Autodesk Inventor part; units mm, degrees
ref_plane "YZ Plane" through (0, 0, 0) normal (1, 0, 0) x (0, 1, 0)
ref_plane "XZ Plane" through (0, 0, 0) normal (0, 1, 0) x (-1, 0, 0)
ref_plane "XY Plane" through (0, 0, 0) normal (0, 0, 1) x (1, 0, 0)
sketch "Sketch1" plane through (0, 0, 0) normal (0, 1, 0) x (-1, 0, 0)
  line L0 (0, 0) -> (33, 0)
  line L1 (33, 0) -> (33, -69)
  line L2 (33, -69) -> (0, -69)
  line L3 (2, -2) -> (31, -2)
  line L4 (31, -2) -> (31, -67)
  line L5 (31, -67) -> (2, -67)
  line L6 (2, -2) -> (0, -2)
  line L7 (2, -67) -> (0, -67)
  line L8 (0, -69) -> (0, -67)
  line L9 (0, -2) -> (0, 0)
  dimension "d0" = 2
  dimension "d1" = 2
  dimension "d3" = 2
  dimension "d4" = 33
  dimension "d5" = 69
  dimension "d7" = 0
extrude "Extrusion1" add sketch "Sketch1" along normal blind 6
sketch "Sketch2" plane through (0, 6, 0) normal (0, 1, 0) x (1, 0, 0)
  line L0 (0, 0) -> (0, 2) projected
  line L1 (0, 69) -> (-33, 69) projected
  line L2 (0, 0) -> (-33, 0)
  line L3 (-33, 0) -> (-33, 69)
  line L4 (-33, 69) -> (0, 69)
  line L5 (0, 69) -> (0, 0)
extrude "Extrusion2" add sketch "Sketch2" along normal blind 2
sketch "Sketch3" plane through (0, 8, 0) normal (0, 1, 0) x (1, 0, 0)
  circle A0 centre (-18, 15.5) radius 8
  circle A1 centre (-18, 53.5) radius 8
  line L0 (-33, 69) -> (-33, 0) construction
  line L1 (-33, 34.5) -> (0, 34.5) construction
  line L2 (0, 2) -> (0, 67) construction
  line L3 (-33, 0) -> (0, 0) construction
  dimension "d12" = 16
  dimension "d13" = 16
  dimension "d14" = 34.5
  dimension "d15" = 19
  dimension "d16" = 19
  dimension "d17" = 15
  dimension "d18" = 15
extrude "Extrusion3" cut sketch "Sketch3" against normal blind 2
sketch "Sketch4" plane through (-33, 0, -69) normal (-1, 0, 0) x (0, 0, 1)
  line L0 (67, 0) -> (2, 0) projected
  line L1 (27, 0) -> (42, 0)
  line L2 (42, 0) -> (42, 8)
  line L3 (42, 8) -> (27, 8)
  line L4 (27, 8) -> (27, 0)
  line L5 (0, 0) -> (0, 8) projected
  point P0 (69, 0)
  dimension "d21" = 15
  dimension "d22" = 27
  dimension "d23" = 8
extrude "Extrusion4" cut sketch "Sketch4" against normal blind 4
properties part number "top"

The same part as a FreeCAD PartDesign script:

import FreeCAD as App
import Part
import Sketcher
from FreeCAD import Vector
Q = App.Units.Quantity


def add_polygon(sketch, points):
    """Adds a closed chain of lines whose ends are joined by coincident constraints."""
    first, n = sketch.GeometryCount, len(points)
    for a, b in zip(points, points[1:] + points[:1]):
        sketch.addGeometry(Part.LineSegment(App.Vector(*a, 0), App.Vector(*b, 0)), False)
    for i in range(n):
        sketch.addConstraint(Sketcher.Constraint("Coincident", first + i, 2, first + (i + 1) % n, 1))

doc = App.newDocument("Part")
body = doc.addObject("PartDesign::Body", "Body")

# Sketch on XZ plane
sketch1 = body.newObject("Sketcher::SketchObject", "Sketch")
sketch1.AttachmentSupport = (doc.getObject("XZ_Plane"), [""])
sketch1.MapMode = "FlatFace"
add_polygon(sketch1, [(-33, 0), (0, 0), (0, -2), (-31, -2), (-31, -67), (0, -67), (0, -69), (-33, -69)])  # lines 0-7
sketch1.addConstraint(Sketcher.Constraint("Horizontal", 0))
sketch1.addConstraint(Sketcher.Constraint("Vertical", 1))
sketch1.addConstraint(Sketcher.Constraint("Horizontal", 2))
sketch1.addConstraint(Sketcher.Constraint("Vertical", 3))
sketch1.addConstraint(Sketcher.Constraint("Horizontal", 4))
sketch1.addConstraint(Sketcher.Constraint("Vertical", 5))
sketch1.addConstraint(Sketcher.Constraint("Horizontal", 6))
sketch1.addConstraint(Sketcher.Constraint("Vertical", 7))
sketch1.addConstraint(Sketcher.Constraint("Coincident", 0, 2, -1, 1))
sketch1.addConstraint(Sketcher.Constraint("PointOnObject", 4, 2, -2))
sketch1.addConstraint(Sketcher.Constraint("Equal", 1, 5))
sketch1.addConstraint(Sketcher.Constraint("DistanceX", 0, 1, 0, 2, Q("33 mm")))
sketch1.addConstraint(Sketcher.Constraint("DistanceY", 1, 2, 1, 1, Q("2 mm")))
sketch1.addConstraint(Sketcher.Constraint("DistanceY", 7, 1, 7, 2, Q("69 mm")))
sketch1.addConstraint(Sketcher.Constraint("DistanceX", 6, 2, 3, 2, Q("2 mm")))
pad1 = body.newObject("PartDesign::Pad", "Pad")
pad1.Profile = sketch1
pad1.Length = 6
pad1.Reversed = True

# Sketch on XZ plane
sketch2 = body.newObject("Sketcher::SketchObject", "Sketch001")
sketch2.AttachmentSupport = (doc.getObject("XZ_Plane"), [""])
sketch2.MapMode = "FlatFace"
sketch2.AttachmentOffset = App.Placement(Vector(0, 0, -6), App.Rotation())
add_polygon(sketch2, [(-33, 0), (0, 0), (0, -69), (-33, -69)])  # lines 0-3
sketch2.addConstraint(Sketcher.Constraint("Horizontal", 0))
sketch2.addConstraint(Sketcher.Constraint("Vertical", 1))
sketch2.addConstraint(Sketcher.Constraint("Horizontal", 2))
sketch2.addConstraint(Sketcher.Constraint("Vertical", 3))
sketch2.addConstraint(Sketcher.Constraint("Coincident", 0, 2, -1, 1))
sketch2.addConstraint(Sketcher.Constraint("DistanceX", 0, 1, 0, 2, Q("33 mm")))
sketch2.addConstraint(Sketcher.Constraint("DistanceY", 1, 2, 1, 1, Q("69 mm")))
pad2 = body.newObject("PartDesign::Pad", "Pad001")
pad2.Profile = sketch2
pad2.Length = 2
pad2.Reversed = True

# Sketch on XZ plane
sketch3 = body.newObject("Sketcher::SketchObject", "Sketch002")
sketch3.AttachmentSupport = (doc.getObject("XZ_Plane"), [""])
sketch3.MapMode = "FlatFace"
sketch3.AttachmentOffset = App.Placement(Vector(0, 0, -8), App.Rotation())
sketch3.addGeometry(Part.Circle(Vector(-18, -16, 0), Vector(0, 0, 1), 8), False)
sketch3.addGeometry(Part.Circle(Vector(-18, -54, 0), Vector(0, 0, 1), 8), False)
sketch3.addConstraint(Sketcher.Constraint("Equal", 0, 1))
sketch3.addConstraint(Sketcher.Constraint("Vertical", 0, 3, 1, 3))
sketch3.addConstraint(Sketcher.Constraint("Diameter", 0, Q("16 mm")))
sketch3.addConstraint(Sketcher.Constraint("DistanceX", 0, 3, -1, 1, Q("18 mm")))
sketch3.addConstraint(Sketcher.Constraint("DistanceY", 1, 3, 0, 3, Q("38 mm")))
sketch3.addConstraint(Sketcher.Constraint("DistanceY", 0, 3, -1, 1, Q("15.5 mm")))
pocket1 = body.newObject("PartDesign::Pocket", "Pocket")
pocket1.Profile = sketch3
pocket1.Length = 2
pocket1.Reversed = True

# Sketch on YZ plane
sketch4 = body.newObject("Sketcher::SketchObject", "Sketch003")
sketch4.AttachmentSupport = (doc.getObject("YZ_Plane"), [""])
sketch4.MapMode = "FlatFace"
sketch4.AttachmentOffset = App.Placement(Vector(0, 0, -33), App.Rotation())
add_polygon(sketch4, [(0, -42), (0, -27), (8, -27), (8, -42)])  # lines 0-3
sketch4.addConstraint(Sketcher.Constraint("Vertical", 0))
sketch4.addConstraint(Sketcher.Constraint("Horizontal", 1))
sketch4.addConstraint(Sketcher.Constraint("Vertical", 2))
sketch4.addConstraint(Sketcher.Constraint("Horizontal", 3))
sketch4.addConstraint(Sketcher.Constraint("PointOnObject", 0, 2, -2))
sketch4.addConstraint(Sketcher.Constraint("DistanceX", 1, 1, 1, 2, Q("8 mm")))
sketch4.addConstraint(Sketcher.Constraint("DistanceY", 0, 1, 0, 2, Q("15 mm")))
sketch4.addConstraint(Sketcher.Constraint("DistanceY", 0, 2, -1, 1, Q("27 mm")))
pocket2 = body.newObject("PartDesign::Pocket", "Pocket001")
pocket2.Profile = sketch4
pocket2.Length = 4
pocket2.Reversed = True

doc.recompute()
